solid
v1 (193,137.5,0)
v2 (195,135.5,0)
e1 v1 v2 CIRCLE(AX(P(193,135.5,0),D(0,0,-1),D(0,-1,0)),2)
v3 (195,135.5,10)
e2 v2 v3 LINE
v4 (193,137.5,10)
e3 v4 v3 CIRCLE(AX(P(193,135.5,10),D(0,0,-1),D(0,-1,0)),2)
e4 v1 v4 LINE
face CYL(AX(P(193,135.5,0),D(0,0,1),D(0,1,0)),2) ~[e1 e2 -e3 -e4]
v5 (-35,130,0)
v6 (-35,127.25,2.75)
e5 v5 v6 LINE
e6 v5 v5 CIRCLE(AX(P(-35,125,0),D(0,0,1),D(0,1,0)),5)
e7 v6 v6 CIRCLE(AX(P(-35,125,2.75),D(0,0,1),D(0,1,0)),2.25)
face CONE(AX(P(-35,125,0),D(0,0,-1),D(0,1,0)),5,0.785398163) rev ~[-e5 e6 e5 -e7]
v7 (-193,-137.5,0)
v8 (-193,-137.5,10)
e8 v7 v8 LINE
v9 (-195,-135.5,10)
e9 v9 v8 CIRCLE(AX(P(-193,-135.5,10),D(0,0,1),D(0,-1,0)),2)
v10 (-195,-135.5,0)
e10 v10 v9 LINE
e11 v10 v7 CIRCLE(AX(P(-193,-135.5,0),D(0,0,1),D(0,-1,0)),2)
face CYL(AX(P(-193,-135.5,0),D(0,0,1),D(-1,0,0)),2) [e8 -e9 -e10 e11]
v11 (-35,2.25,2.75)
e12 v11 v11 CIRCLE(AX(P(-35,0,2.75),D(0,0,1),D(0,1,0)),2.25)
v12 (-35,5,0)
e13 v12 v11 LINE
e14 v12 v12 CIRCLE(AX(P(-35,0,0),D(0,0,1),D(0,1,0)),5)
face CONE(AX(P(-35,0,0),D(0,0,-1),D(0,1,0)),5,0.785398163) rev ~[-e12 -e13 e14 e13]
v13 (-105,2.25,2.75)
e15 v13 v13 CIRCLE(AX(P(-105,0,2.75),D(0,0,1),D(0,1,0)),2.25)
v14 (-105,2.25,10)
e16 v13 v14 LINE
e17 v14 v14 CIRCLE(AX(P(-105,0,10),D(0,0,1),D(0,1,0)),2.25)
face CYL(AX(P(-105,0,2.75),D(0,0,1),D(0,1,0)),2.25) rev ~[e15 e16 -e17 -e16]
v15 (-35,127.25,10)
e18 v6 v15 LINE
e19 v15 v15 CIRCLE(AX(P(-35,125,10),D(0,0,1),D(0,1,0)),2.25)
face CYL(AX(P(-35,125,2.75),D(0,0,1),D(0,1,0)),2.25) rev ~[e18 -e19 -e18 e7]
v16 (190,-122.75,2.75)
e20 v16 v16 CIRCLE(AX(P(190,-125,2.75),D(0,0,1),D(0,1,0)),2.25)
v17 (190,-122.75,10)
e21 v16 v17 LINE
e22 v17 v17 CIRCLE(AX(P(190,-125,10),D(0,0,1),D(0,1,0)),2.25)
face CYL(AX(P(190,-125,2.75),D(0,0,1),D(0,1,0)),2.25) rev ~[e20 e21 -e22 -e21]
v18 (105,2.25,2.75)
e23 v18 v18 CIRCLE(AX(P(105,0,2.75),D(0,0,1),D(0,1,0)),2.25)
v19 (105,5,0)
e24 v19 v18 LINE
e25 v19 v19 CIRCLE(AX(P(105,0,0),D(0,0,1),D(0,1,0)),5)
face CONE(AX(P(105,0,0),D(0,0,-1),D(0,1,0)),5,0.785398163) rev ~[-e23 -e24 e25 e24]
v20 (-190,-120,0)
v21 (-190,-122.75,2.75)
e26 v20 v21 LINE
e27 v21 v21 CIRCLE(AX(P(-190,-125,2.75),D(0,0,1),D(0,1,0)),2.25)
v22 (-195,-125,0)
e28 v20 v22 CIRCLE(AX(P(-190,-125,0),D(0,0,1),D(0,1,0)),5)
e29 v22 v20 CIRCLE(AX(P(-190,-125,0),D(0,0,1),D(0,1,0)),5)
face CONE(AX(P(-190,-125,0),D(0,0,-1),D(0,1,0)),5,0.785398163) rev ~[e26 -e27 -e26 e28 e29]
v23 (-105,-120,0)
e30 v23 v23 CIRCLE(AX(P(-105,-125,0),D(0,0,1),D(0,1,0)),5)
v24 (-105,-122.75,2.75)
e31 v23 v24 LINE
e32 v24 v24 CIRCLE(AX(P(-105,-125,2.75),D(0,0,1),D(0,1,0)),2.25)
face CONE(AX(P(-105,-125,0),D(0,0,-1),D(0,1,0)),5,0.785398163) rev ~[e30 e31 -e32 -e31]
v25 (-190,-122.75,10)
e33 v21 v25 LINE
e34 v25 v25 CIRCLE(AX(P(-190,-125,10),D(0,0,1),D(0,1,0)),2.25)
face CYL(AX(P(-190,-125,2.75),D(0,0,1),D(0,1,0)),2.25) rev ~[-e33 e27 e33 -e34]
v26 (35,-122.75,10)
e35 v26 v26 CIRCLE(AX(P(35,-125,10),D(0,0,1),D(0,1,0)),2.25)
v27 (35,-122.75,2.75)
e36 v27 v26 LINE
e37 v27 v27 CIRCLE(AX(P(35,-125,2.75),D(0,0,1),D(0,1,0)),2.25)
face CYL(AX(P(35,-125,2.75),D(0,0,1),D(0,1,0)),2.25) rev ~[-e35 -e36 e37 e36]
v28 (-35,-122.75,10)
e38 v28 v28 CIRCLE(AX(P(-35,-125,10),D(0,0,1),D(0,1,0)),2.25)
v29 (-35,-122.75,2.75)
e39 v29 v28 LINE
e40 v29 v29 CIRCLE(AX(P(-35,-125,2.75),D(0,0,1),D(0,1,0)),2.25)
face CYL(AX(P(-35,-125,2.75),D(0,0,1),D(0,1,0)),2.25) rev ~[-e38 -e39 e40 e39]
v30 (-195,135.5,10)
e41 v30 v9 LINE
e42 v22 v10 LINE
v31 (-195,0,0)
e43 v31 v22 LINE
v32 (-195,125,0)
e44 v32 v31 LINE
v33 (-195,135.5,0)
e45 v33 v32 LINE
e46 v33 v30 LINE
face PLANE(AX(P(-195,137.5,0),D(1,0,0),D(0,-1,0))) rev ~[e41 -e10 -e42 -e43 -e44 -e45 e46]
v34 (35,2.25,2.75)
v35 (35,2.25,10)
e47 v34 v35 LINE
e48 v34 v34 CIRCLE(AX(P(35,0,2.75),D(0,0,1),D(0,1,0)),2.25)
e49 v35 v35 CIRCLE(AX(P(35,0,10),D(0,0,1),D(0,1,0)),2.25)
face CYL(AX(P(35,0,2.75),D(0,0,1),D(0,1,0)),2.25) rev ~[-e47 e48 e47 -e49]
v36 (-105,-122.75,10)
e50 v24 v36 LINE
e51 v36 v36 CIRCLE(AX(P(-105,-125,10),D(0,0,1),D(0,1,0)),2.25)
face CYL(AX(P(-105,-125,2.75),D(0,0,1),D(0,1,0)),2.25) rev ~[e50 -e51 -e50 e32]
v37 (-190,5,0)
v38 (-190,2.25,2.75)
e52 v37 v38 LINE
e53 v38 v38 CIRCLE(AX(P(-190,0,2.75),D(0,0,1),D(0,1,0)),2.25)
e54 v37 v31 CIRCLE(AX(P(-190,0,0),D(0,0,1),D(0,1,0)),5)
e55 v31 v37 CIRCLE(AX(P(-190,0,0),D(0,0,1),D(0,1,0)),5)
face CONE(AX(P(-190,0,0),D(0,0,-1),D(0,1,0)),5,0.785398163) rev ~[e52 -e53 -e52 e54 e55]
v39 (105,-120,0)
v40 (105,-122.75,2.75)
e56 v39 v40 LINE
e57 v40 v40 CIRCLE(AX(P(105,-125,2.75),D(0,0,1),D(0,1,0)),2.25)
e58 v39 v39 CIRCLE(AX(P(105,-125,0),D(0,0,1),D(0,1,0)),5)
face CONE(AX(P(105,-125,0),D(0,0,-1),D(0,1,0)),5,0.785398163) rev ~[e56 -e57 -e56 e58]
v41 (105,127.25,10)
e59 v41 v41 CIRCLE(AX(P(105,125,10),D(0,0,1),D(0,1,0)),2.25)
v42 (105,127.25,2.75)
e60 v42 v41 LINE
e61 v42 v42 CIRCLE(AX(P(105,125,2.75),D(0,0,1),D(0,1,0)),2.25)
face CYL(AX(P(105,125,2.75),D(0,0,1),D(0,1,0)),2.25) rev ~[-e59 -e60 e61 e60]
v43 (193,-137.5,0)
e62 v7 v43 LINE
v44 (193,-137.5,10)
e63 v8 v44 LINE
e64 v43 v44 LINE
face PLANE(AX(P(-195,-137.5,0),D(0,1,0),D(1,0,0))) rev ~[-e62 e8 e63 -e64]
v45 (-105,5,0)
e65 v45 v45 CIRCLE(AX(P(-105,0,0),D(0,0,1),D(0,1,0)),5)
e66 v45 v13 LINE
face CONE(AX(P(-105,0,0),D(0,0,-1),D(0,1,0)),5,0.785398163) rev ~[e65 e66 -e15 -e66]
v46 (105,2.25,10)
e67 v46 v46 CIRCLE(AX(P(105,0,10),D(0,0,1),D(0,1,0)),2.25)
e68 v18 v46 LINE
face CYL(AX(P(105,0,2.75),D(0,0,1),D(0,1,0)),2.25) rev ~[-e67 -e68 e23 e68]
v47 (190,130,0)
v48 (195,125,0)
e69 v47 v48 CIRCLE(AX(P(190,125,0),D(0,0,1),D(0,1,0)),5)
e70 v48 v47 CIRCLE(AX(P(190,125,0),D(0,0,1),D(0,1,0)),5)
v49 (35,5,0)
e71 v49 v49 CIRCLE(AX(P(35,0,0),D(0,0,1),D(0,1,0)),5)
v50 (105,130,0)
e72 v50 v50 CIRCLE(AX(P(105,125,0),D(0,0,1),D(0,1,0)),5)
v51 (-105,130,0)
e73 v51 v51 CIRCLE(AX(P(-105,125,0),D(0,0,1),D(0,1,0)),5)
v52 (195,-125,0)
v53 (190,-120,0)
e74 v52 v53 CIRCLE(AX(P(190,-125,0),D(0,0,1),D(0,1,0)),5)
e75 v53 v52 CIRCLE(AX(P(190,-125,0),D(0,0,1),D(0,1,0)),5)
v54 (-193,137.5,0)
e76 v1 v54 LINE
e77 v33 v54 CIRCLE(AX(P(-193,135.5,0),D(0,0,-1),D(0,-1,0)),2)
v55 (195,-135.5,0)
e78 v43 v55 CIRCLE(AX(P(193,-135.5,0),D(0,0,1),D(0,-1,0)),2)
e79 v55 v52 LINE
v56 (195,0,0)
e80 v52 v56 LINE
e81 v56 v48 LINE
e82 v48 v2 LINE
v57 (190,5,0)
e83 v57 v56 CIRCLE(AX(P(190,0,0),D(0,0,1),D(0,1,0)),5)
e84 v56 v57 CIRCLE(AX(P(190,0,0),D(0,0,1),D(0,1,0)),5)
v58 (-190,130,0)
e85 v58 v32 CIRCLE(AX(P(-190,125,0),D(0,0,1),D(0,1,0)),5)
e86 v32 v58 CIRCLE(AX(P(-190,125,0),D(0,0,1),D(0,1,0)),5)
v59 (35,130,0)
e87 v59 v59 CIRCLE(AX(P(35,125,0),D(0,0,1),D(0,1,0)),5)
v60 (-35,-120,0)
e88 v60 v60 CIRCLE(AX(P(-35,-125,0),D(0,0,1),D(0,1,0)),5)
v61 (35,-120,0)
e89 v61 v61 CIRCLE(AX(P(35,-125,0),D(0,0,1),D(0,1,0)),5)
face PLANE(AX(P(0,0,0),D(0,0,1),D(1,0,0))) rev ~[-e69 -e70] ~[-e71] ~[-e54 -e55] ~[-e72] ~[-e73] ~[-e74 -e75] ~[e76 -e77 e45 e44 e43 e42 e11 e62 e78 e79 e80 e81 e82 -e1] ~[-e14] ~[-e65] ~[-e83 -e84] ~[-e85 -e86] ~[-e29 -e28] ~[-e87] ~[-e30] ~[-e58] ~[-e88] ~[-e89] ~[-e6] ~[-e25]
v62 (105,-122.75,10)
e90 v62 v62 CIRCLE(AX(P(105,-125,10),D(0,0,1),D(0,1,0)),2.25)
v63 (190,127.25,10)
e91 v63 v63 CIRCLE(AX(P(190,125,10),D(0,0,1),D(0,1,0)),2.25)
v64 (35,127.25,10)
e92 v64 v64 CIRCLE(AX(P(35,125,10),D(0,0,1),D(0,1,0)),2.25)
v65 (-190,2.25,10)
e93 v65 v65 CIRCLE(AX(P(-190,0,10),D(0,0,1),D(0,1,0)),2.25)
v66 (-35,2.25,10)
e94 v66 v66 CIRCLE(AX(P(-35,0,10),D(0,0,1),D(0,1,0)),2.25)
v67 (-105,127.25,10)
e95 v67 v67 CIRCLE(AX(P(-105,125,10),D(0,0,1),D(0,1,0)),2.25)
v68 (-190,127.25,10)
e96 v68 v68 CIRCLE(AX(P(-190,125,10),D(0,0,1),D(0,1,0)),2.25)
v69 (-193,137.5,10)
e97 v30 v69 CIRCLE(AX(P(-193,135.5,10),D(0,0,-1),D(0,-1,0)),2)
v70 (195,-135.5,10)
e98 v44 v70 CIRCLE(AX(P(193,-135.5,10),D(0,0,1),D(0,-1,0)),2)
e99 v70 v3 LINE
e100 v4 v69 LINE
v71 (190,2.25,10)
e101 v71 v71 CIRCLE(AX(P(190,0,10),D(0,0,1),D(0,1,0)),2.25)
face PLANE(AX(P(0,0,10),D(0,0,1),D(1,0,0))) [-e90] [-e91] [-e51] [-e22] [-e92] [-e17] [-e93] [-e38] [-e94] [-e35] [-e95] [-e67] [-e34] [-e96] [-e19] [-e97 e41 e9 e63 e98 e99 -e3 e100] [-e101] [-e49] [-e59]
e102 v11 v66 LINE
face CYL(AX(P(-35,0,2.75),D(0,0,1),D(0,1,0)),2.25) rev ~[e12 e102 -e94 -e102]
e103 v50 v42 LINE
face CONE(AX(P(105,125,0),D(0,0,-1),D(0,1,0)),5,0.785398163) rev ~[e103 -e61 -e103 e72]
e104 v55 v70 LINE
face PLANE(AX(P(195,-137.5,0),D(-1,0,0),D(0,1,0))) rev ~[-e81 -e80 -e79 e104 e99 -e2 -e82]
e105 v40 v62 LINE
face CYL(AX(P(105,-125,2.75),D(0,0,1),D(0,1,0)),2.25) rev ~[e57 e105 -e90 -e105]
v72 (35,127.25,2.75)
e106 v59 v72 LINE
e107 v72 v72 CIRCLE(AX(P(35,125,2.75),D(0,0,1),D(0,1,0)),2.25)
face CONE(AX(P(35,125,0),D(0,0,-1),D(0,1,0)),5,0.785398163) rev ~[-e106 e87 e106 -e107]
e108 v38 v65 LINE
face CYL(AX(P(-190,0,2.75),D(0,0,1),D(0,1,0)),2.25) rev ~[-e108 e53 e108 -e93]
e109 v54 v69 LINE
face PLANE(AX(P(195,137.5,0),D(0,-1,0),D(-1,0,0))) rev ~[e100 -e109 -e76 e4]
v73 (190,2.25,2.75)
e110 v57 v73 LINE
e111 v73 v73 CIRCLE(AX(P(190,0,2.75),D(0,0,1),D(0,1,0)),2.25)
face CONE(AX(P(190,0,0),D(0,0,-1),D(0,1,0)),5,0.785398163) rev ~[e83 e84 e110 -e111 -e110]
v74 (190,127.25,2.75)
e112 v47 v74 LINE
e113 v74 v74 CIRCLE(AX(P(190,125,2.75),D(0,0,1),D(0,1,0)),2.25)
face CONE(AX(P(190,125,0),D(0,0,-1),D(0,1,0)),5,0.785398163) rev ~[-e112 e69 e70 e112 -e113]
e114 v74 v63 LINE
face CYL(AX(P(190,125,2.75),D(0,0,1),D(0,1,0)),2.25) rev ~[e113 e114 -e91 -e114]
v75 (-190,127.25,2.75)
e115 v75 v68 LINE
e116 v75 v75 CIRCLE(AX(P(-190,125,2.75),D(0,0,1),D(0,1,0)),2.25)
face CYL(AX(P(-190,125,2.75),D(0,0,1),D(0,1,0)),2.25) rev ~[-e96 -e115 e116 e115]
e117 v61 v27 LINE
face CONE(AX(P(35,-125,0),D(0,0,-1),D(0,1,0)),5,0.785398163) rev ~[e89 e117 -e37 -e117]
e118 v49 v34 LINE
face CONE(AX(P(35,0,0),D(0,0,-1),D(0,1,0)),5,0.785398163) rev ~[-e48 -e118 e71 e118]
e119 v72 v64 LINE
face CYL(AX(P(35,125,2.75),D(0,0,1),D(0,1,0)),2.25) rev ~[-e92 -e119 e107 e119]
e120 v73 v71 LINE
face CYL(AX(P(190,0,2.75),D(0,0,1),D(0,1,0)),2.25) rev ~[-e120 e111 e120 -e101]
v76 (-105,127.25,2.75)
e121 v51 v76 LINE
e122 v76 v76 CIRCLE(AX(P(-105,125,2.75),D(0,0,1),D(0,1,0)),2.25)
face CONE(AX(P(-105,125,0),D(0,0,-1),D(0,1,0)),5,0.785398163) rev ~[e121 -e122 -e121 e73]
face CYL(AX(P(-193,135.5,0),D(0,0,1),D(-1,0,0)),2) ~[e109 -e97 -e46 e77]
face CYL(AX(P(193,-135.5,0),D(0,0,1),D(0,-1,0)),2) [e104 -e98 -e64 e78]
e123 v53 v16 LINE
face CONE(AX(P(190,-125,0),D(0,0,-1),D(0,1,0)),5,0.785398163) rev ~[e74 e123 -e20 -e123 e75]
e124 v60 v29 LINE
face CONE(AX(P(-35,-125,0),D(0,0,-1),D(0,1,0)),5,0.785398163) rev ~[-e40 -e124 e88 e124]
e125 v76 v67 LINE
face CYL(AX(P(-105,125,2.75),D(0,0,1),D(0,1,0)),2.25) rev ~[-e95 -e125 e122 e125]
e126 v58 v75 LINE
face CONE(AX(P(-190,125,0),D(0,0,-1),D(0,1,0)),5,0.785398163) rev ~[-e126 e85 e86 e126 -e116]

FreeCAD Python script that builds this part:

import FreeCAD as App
import Part
import Sketcher

V = App.Vector


def edges_at(feature, points):
    """Names of the edges that pass closest to the given points."""
    edges = feature.Shape.Edges
    near = lambda p: min(range(len(edges)), key=lambda i: edges[i].distToShape(Part.Vertex(*p))[0])
    return sorted({f"Edge{near(p) + 1}" for p in points})


def add_polygon(sketch, points):
    """Adds a closed chain of lines whose ends are joined by coincident constraints."""
    first, n = sketch.GeometryCount, len(points)
    for a, b in zip(points, points[1:] + points[:1]):
        sketch.addGeometry(Part.LineSegment(App.Vector(*a, 0), App.Vector(*b, 0)), False)
    for i in range(n):
        sketch.addConstraint(Sketcher.Constraint("Coincident", first + i, 2, first + (i + 1) % n, 1))

doc = App.newDocument("Part")
body = doc.addObject("PartDesign::Body", "Body")

# Sketch on XY plane
sketch1 = body.newObject("Sketcher::SketchObject", "Sketch")
sketch1.AttachmentSupport = (doc.getObject("XY_Plane"), [""])
sketch1.MapMode = "FlatFace"
add_polygon(sketch1, [(-195, 138), (-195, -138), (195, -138), (195, 138)])  # lines 0-3
sketch1.addConstraint(Sketcher.Constraint("Vertical", 0))
sketch1.addConstraint(Sketcher.Constraint("Horizontal", 1))
sketch1.addConstraint(Sketcher.Constraint("Vertical", 2))
sketch1.addConstraint(Sketcher.Constraint("Horizontal", 3))
sketch1.addConstraint(Sketcher.Constraint("Symmetric", 0, 2, 2, 2, -1, 1))
sketch1.addConstraint(Sketcher.Constraint("DistanceX", 1, 1, 1, 2, 390.0))
sketch1.addConstraint(Sketcher.Constraint("DistanceY", 0, 2, 0, 1, 275.0))
pad1 = body.newObject("PartDesign::Pad", "Pad")
pad1.Profile = sketch1
pad1.Length = 10

# Sketch on XY plane
sketch2 = body.newObject("Sketcher::SketchObject", "Sketch001")
sketch2.AttachmentSupport = (doc.getObject("XY_Plane"), [""])
sketch2.MapMode = "FlatFace"
sketch2.addGeometry(Part.Circle(V(190, 125, 0), V(0, 0, 1), 2.2), False)
sketch2.addGeometry(Part.Circle(V(190, 0, 0), V(0, 0, 1), 2.2), False)
sketch2.addGeometry(Part.Circle(V(190, -125, 0), V(0, 0, 1), 2.2), False)
sketch2.addGeometry(Part.Circle(V(35, 125, 0), V(0, 0, 1), 2.2), False)
sketch2.addGeometry(Part.Circle(V(35, 0, 0), V(0, 0, 1), 2.2), False)
sketch2.addGeometry(Part.Circle(V(35, -125, 0), V(0, 0, 1), 2.2), False)
sketch2.addGeometry(Part.Circle(V(-190, -125, 0), V(0, 0, 1), 2.2), False)
sketch2.addGeometry(Part.Circle(V(-190, 0, 0), V(0, 0, 1), 2.2), False)
sketch2.addGeometry(Part.Circle(V(-190, 125, 0), V(0, 0, 1), 2.2), False)
sketch2.addGeometry(Part.Circle(V(-35, -125, 0), V(0, 0, 1), 2.2), False)
sketch2.addGeometry(Part.Circle(V(-35, 0, 0), V(0, 0, 1), 2.2), False)
sketch2.addGeometry(Part.Circle(V(-35, 125, 0), V(0, 0, 1), 2.2), False)
sketch2.addGeometry(Part.Circle(V(-105, -125, 0), V(0, 0, 1), 2.2), False)
sketch2.addGeometry(Part.Circle(V(-105, 0, 0), V(0, 0, 1), 2.2), False)
sketch2.addGeometry(Part.Circle(V(-105, 125, 0), V(0, 0, 1), 2.2), False)
sketch2.addGeometry(Part.Circle(V(105, 125, 0), V(0, 0, 1), 2.2), False)
sketch2.addGeometry(Part.Circle(V(105, 0, 0), V(0, 0, 1), 2.2), False)
sketch2.addGeometry(Part.Circle(V(105, -125, 0), V(0, 0, 1), 2.2), False)
sketch2.addConstraint(Sketcher.Constraint("Equal", 0, 1))
sketch2.addConstraint(Sketcher.Constraint("Equal", 1, 2))
sketch2.addConstraint(Sketcher.Constraint("Equal", 2, 3))
sketch2.addConstraint(Sketcher.Constraint("Equal", 3, 4))
sketch2.addConstraint(Sketcher.Constraint("Equal", 4, 5))
sketch2.addConstraint(Sketcher.Constraint("Equal", 5, 6))
sketch2.addConstraint(Sketcher.Constraint("Equal", 6, 7))
sketch2.addConstraint(Sketcher.Constraint("Equal", 7, 8))
sketch2.addConstraint(Sketcher.Constraint("Equal", 8, 9))
sketch2.addConstraint(Sketcher.Constraint("Equal", 9, 10))
sketch2.addConstraint(Sketcher.Constraint("Equal", 10, 11))
sketch2.addConstraint(Sketcher.Constraint("Equal", 11, 12))
sketch2.addConstraint(Sketcher.Constraint("Equal", 12, 13))
sketch2.addConstraint(Sketcher.Constraint("Equal", 13, 14))
sketch2.addConstraint(Sketcher.Constraint("Equal", 14, 15))
sketch2.addConstraint(Sketcher.Constraint("Equal", 15, 16))
sketch2.addConstraint(Sketcher.Constraint("Equal", 16, 17))
sketch2.addConstraint(Sketcher.Constraint("Symmetric", 0, 3, 6, 3, -1, 1))
sketch2.addConstraint(Sketcher.Constraint("Symmetric", 1, 3, 7, 3, -1, 1))
sketch2.addConstraint(Sketcher.Constraint("Symmetric", 2, 3, 8, 3, -1, 1))
sketch2.addConstraint(Sketcher.Constraint("Symmetric", 3, 3, 9, 3, -1, 1))
sketch2.addConstraint(Sketcher.Constraint("Symmetric", 4, 3, 10, 3, -1, 1))
sketch2.addConstraint(Sketcher.Constraint("Symmetric", 5, 3, 11, 3, -1, 1))
sketch2.addConstraint(Sketcher.Constraint("Symmetric", 12, 3, 15, 3, -1, 1))
sketch2.addConstraint(Sketcher.Constraint("Symmetric", 13, 3, 16, 3, -1, 1))
sketch2.addConstraint(Sketcher.Constraint("Symmetric", 14, 3, 17, 3, -1, 1))
sketch2.addConstraint(Sketcher.Constraint("Symmetric", 2, 3, 6, 3, -2))
sketch2.addConstraint(Sketcher.Constraint("Symmetric", 5, 3, 9, 3, -2))
sketch2.addConstraint(Sketcher.Constraint("Symmetric", 14, 3, 15, 3, -2))
sketch2.addConstraint(Sketcher.Constraint("PointOnObject", 1, 3, -1))
sketch2.addConstraint(Sketcher.Constraint("PointOnObject", 4, 3, -1))
sketch2.addConstraint(Sketcher.Constraint("PointOnObject", 13, 3, -1))
sketch2.addConstraint(Sketcher.Constraint("Horizontal", 0, 3, 3, 3))
sketch2.addConstraint(Sketcher.Constraint("Horizontal", 9, 3, 12, 3))
sketch2.addConstraint(Sketcher.Constraint("Vertical", 0, 3, 1, 3))
sketch2.addConstraint(Sketcher.Constraint("Vertical", 3, 3, 4, 3))
sketch2.addConstraint(Sketcher.Constraint("Vertical", 12, 3, 13, 3))
sketch2.addConstraint(Sketcher.Constraint("Diameter", 0, 4.5))
sketch2.addConstraint(Sketcher.Constraint("DistanceX", -1, 1, 0, 3, 190.0))
sketch2.addConstraint(Sketcher.Constraint("DistanceY", -1, 1, 0, 3, 125.0))
sketch2.addConstraint(Sketcher.Constraint("DistanceX", -1, 1, 3, 3, 35.0))
sketch2.addConstraint(Sketcher.Constraint("DistanceX", 12, 3, -1, 1, 105.0))
doc.recompute()
hole = body.newObject("PartDesign::Hole", "Hole")
hole.Profile = sketch2
hole.ThreadType = "None"
hole.Diameter = 4.5
hole.DepthType = "ThroughAll"
hole.HoleCutType = "Countersink"
hole.HoleCutDiameter = 10
hole.HoleCutCountersinkAngle = 90
hole.Reversed = True
doc.recompute()

fillet = body.newObject("PartDesign::Fillet", "Fillet")
fillet.Base = (hole, edges_at(hole, [
    (195, 137.5, 5),
    (195, -137.5, 5),
    (-195, 137.5, 5),
    (-195, -137.5, 5),
]))
fillet.Radius = 2

doc.recompute()
